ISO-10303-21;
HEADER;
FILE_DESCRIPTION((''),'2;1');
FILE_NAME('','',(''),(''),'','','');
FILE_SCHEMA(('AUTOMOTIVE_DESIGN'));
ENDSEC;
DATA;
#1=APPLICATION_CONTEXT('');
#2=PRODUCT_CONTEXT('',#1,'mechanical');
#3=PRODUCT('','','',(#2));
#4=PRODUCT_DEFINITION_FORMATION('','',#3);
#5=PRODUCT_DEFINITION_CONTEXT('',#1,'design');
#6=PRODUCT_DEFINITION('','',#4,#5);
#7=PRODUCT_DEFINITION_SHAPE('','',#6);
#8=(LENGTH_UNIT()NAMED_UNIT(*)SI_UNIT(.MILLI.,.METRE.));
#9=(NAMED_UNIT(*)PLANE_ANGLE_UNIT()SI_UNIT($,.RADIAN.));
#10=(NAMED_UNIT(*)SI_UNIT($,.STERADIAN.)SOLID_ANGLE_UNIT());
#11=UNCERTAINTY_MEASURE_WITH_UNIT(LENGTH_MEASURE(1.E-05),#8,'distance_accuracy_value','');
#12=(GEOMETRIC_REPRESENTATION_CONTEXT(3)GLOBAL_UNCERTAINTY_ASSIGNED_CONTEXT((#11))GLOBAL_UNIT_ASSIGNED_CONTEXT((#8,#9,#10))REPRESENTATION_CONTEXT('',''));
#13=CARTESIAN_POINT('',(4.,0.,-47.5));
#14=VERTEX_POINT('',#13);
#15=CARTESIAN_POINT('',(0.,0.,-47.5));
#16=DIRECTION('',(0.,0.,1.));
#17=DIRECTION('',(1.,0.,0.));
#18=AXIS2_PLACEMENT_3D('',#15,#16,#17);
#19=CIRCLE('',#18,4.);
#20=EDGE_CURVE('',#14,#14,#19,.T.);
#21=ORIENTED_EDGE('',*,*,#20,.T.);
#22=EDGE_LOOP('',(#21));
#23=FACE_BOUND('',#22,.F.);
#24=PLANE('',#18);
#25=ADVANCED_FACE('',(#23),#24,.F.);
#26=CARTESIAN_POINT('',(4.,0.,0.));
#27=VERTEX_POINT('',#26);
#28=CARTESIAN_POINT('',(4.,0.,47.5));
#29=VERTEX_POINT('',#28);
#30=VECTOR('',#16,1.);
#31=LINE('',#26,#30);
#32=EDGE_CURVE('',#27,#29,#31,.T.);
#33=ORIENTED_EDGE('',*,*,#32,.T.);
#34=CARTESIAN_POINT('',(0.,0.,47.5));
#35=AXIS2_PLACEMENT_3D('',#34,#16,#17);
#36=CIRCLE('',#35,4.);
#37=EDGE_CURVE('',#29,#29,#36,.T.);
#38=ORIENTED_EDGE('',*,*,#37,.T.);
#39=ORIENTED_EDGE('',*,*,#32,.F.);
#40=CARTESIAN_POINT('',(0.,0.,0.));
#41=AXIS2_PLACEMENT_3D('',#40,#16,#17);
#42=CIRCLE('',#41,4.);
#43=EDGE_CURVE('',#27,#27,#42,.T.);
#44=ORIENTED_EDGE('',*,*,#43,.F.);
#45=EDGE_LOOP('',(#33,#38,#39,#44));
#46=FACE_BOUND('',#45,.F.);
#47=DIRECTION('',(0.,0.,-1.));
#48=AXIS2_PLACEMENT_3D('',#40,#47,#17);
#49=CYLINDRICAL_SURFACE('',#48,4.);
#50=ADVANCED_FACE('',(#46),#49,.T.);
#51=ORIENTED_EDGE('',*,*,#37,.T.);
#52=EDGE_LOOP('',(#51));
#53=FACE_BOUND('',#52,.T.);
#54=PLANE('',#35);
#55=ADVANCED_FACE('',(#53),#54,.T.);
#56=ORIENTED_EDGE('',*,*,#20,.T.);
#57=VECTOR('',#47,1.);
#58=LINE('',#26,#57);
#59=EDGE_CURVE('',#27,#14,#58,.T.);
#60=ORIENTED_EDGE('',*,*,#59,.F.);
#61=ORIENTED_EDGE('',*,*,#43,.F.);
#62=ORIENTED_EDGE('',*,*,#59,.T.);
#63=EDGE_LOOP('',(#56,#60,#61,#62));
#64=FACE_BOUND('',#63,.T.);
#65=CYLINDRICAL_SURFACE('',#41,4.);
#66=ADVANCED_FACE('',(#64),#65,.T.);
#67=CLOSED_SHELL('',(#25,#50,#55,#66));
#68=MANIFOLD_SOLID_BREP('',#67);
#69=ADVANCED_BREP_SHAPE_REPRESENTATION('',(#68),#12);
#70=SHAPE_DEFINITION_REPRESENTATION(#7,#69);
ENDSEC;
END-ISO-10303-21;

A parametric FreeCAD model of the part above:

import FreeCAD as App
import Part
import Sketcher
from FreeCAD import Vector

doc = App.newDocument("Part")
params = doc.addObject("Spreadsheet::Sheet", "Params")
for row, (alias, value) in enumerate([
    ("sketch1_diameter", "8 mm"),
    ("pad1_length", "95 mm"),
], start=1):
    params.set(f"A{row}", alias)
    params.set(f"B{row}", "=" + value)
    params.setAlias(f"B{row}", alias)

body = doc.addObject("PartDesign::Body", "Body")

sketch1 = doc.addObject("Sketcher::SketchObject", "Sketch")
body.addObject(sketch1)
sketch1.AttachmentSupport = (doc.XY_Plane, [""])
sketch1.MapMode = "FlatFace"
sketch1.addGeometry(Part.Circle(Vector(0, 0, 0), Vector(0, 0, 1), 4), False)
sketch1.addConstraint([
    Sketcher.Constraint("Coincident", 0, 3, -1, 1),
    Sketcher.Constraint("Diameter", 0, 8.0),
])
sketch1.setExpression("Constraints[1]", "Params.sketch1_diameter")
pad1 = doc.addObject("PartDesign::Pad", "Pad")
body.addObject(pad1)
pad1.Profile = sketch1
pad1.setExpression("Length", "Params.pad1_length")
pad1.Midplane = True

doc.recompute()
